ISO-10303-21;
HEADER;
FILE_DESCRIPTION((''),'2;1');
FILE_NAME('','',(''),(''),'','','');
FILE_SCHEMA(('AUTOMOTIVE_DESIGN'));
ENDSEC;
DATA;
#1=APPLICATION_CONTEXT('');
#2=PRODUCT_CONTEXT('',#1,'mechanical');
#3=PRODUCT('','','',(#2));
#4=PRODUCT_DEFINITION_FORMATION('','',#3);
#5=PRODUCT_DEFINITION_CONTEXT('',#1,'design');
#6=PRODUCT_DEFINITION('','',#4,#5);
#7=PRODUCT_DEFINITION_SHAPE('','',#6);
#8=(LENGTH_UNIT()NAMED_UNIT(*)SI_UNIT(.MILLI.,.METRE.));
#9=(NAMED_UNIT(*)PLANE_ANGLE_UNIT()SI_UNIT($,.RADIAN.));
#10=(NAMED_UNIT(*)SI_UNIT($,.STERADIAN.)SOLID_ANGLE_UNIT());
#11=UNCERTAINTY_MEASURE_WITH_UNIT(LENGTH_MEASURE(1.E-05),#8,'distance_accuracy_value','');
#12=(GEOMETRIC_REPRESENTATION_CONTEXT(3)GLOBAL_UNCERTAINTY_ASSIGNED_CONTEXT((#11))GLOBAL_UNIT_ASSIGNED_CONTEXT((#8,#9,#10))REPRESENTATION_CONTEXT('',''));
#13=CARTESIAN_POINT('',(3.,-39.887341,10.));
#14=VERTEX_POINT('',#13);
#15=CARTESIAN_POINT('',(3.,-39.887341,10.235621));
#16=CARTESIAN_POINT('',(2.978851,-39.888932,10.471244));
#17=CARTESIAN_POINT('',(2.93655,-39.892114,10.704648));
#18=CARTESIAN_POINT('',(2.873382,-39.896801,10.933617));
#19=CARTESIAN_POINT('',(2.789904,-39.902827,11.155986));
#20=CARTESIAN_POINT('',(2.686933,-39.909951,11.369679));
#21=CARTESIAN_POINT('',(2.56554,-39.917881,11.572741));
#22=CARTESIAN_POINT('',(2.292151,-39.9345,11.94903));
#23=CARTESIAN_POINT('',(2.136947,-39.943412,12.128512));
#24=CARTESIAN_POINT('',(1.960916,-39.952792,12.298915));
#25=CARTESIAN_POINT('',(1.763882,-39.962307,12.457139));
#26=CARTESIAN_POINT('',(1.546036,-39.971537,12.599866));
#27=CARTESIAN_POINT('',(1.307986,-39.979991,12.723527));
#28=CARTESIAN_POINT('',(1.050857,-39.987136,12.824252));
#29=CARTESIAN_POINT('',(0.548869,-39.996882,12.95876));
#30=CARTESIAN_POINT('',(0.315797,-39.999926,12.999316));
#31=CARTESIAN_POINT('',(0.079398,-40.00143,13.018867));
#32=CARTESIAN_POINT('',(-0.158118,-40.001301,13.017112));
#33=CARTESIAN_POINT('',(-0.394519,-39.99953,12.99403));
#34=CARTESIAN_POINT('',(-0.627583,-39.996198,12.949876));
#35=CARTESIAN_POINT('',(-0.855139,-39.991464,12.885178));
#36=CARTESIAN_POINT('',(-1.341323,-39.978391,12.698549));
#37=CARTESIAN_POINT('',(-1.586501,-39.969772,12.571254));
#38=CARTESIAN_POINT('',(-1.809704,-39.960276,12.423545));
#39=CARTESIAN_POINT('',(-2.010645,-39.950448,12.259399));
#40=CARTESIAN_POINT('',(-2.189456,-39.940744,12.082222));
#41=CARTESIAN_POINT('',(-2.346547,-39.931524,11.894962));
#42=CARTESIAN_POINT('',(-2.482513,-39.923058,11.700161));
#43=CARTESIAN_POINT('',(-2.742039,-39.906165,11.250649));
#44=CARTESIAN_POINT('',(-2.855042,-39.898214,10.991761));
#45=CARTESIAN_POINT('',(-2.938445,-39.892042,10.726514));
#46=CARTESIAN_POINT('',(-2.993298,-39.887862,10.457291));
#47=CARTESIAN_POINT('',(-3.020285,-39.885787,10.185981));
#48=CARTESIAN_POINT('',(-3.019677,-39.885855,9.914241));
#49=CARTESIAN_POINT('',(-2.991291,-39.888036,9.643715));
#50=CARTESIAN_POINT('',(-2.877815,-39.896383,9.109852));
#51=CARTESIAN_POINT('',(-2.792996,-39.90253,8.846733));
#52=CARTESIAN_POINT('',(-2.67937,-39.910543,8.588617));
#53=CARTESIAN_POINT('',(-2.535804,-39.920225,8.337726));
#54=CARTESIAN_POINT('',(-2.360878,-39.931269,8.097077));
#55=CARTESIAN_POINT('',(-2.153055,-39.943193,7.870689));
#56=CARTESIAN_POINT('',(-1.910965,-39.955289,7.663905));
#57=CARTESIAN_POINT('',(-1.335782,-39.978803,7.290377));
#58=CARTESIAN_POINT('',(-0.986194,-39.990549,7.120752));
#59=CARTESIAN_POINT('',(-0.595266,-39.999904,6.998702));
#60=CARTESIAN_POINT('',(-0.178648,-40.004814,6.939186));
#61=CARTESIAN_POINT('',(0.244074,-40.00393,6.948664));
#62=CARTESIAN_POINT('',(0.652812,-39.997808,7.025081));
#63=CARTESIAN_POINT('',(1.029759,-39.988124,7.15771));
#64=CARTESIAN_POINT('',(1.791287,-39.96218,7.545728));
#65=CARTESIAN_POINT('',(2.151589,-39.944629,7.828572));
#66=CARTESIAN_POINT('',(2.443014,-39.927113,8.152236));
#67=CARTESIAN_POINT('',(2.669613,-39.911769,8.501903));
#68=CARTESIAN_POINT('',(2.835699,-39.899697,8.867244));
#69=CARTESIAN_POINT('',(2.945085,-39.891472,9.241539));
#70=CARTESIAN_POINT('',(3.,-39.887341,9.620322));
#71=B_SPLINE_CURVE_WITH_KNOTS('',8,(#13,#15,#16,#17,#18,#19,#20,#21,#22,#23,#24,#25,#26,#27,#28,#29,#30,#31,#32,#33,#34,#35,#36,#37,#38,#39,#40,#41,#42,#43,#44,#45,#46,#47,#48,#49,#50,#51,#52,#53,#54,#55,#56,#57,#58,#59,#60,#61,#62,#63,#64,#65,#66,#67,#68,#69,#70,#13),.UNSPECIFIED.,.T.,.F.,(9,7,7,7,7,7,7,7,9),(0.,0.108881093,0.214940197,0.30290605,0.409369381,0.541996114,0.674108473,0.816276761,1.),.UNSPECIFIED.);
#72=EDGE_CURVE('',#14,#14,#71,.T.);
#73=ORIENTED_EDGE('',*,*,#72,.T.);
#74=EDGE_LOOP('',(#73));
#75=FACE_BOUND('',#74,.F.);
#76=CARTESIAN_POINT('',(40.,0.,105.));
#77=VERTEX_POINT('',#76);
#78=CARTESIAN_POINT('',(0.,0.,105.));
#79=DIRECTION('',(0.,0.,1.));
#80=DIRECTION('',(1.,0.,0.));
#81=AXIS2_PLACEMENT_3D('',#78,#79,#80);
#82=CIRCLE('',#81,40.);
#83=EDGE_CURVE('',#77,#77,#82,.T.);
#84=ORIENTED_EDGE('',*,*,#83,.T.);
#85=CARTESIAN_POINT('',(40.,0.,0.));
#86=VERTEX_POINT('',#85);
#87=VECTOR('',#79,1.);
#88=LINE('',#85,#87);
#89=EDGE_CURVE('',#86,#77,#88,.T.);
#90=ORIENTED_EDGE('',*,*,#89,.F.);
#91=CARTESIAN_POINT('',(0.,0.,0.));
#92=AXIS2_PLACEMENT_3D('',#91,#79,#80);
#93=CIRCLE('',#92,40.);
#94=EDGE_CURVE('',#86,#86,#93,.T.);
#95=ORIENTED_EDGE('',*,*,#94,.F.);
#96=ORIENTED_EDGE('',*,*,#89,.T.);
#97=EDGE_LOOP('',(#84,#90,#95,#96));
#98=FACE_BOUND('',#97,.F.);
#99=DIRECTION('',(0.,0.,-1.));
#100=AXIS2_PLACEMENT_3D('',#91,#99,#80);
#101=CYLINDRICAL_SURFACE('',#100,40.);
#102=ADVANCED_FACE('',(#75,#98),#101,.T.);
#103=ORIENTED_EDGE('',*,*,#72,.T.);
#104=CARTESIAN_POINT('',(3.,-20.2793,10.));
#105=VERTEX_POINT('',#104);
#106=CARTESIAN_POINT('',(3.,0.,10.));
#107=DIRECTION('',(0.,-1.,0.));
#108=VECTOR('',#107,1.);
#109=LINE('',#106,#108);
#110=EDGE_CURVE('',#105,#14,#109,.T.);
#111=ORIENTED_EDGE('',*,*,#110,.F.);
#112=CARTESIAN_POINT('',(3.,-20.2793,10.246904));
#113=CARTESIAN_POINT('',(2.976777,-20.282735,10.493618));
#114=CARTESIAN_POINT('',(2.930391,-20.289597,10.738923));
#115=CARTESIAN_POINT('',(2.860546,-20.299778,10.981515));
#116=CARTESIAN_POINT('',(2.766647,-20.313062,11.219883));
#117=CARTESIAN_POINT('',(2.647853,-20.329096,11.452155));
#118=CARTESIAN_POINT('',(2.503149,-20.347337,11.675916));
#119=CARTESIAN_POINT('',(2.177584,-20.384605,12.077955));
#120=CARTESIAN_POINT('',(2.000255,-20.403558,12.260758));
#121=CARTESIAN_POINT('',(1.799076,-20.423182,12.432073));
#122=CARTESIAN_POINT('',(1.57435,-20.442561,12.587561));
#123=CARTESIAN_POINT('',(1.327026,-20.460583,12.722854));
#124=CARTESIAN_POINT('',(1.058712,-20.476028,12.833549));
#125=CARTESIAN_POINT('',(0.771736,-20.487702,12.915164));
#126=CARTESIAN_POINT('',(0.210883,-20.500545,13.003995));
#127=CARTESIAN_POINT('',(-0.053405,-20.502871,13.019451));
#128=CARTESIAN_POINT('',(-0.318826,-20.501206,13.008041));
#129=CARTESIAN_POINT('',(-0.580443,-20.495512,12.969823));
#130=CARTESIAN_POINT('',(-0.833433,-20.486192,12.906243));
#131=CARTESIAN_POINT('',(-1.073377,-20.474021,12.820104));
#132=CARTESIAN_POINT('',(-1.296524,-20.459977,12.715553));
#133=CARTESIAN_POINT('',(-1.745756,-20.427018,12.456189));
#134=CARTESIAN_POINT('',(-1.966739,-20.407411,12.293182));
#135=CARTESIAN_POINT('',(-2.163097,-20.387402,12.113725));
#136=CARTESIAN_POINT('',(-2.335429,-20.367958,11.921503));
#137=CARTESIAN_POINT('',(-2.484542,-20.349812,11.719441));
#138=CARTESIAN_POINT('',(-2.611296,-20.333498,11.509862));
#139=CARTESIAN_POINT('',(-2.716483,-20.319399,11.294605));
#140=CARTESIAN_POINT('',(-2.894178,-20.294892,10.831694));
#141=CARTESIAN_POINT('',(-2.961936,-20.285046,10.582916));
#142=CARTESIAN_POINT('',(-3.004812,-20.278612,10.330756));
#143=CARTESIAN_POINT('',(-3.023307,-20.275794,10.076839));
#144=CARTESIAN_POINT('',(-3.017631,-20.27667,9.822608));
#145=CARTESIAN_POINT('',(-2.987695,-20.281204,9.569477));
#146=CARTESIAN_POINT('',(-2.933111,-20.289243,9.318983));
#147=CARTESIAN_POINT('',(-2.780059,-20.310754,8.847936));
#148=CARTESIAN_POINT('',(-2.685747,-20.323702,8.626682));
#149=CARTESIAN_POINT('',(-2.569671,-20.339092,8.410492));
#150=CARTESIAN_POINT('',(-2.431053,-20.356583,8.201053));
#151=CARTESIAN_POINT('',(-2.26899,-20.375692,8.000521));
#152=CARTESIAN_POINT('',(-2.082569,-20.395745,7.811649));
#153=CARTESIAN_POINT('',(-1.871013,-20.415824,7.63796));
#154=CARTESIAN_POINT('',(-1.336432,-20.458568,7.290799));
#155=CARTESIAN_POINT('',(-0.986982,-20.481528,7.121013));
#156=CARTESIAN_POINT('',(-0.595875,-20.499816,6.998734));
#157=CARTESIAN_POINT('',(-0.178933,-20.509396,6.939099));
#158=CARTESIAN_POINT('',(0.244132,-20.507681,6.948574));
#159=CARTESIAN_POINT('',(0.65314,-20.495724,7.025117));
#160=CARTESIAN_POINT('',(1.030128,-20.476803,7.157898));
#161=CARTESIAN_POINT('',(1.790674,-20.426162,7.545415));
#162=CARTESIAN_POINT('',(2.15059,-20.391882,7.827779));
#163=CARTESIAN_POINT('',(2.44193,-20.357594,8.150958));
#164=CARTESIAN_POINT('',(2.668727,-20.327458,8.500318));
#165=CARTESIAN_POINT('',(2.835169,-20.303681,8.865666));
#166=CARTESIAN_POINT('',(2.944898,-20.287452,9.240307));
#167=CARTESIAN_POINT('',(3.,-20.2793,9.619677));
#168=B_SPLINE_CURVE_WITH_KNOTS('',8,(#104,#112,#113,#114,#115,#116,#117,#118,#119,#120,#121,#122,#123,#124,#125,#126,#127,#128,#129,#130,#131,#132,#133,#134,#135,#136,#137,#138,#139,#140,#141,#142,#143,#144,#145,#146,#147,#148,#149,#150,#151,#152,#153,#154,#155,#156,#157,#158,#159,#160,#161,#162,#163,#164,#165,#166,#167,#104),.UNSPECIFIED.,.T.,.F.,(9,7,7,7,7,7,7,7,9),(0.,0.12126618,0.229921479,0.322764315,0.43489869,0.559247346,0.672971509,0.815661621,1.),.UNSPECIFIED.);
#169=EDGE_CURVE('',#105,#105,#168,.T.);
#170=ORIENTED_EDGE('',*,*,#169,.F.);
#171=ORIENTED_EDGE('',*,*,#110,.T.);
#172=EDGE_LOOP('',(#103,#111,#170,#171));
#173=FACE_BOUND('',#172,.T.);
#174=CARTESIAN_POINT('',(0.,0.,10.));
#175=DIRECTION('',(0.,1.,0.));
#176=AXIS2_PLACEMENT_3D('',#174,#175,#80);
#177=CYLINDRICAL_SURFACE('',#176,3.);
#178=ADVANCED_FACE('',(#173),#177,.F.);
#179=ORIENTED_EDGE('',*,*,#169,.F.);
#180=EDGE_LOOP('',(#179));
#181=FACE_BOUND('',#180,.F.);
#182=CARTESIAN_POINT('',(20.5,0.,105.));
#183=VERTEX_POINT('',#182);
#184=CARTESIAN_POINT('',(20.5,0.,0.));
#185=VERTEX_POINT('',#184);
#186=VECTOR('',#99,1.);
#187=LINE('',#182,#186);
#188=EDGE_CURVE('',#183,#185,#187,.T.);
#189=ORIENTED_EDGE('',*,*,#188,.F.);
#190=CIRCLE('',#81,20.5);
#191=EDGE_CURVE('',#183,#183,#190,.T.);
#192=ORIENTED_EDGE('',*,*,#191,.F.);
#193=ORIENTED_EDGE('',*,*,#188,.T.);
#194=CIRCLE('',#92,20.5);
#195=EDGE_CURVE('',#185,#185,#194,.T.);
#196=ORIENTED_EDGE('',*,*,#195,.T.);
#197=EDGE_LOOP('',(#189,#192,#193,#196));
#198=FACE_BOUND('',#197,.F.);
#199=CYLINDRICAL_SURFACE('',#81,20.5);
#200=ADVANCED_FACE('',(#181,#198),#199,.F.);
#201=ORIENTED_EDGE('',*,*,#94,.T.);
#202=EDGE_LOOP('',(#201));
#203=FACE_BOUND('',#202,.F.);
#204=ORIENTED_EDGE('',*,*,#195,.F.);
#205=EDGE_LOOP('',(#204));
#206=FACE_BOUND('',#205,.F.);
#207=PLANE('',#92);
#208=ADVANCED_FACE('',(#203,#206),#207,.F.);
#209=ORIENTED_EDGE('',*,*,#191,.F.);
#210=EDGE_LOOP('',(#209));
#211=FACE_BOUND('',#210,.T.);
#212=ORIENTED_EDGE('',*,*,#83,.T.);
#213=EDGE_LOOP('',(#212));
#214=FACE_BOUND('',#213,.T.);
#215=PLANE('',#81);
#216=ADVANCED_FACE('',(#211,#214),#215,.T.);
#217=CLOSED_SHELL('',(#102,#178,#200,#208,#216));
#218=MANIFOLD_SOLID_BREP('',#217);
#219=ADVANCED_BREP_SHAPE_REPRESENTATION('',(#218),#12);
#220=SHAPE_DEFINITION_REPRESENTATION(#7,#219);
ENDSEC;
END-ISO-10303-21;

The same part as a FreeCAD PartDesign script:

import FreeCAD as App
import Part
import Sketcher
from FreeCAD import Vector
Q = App.Units.Quantity

doc = App.newDocument("Part")
body = doc.addObject("PartDesign::Body", "Body")

sketch1 = body.newObject("Sketcher::SketchObject", "Sketch")
sketch1.AttachmentSupport = (doc.getObject("XY_Plane"), [""])
sketch1.MapMode = "FlatFace"
sketch1.addGeometry(Part.Circle(Vector(0, 0, 0), Vector(0, 0, 1), 40), False)
sketch1.addConstraint(Sketcher.Constraint("Coincident", 0, 3, -1, 1))
sketch1.addConstraint(Sketcher.Constraint("Diameter", 0, Q("80 mm")))
pad1 = body.newObject("PartDesign::Pad", "Pad")
pad1.Profile = sketch1
pad1.Length = 105

sketch2 = body.newObject("Sketcher::SketchObject", "Sketch001")
sketch2.AttachmentSupport = (doc.getObject("XY_Plane"), [""])
sketch2.MapMode = "FlatFace"
sketch2.AttachmentOffset = App.Placement(Vector(0, 0, 105), App.Rotation())
sketch2.addGeometry(Part.Circle(Vector(0, 0, 0), Vector(0, 0, 1), 20), False)
sketch2.addConstraint(Sketcher.Constraint("Coincident", 0, 3, -1, 1))
sketch2.addConstraint(Sketcher.Constraint("Diameter", 0, Q("41 mm")))
pocket1 = body.newObject("PartDesign::Pocket", "Pocket")
pocket1.Profile = sketch2
pocket1.Type = "ThroughAll"

sketch3 = body.newObject("Sketcher::SketchObject", "Sketch002")
sketch3.AttachmentSupport = (doc.getObject("XZ_Plane"), [""])
sketch3.MapMode = "FlatFace"
sketch3.addGeometry(Part.Circle(Vector(0, 10, 0), Vector(0, 0, 1), 3), False)
sketch3.addConstraint(Sketcher.Constraint("PointOnObject", 0, 3, -2))
sketch3.addConstraint(Sketcher.Constraint("Diameter", 0, Q("6 mm")))
sketch3.addConstraint(Sketcher.Constraint("DistanceY", -1, 1, 0, 3, Q("10 mm")))
pocket2 = body.newObject("PartDesign::Pocket", "Pocket001")
pocket2.Profile = sketch3
pocket2.Type = "ThroughAll"
pocket2.Reversed = True

doc.recompute()
